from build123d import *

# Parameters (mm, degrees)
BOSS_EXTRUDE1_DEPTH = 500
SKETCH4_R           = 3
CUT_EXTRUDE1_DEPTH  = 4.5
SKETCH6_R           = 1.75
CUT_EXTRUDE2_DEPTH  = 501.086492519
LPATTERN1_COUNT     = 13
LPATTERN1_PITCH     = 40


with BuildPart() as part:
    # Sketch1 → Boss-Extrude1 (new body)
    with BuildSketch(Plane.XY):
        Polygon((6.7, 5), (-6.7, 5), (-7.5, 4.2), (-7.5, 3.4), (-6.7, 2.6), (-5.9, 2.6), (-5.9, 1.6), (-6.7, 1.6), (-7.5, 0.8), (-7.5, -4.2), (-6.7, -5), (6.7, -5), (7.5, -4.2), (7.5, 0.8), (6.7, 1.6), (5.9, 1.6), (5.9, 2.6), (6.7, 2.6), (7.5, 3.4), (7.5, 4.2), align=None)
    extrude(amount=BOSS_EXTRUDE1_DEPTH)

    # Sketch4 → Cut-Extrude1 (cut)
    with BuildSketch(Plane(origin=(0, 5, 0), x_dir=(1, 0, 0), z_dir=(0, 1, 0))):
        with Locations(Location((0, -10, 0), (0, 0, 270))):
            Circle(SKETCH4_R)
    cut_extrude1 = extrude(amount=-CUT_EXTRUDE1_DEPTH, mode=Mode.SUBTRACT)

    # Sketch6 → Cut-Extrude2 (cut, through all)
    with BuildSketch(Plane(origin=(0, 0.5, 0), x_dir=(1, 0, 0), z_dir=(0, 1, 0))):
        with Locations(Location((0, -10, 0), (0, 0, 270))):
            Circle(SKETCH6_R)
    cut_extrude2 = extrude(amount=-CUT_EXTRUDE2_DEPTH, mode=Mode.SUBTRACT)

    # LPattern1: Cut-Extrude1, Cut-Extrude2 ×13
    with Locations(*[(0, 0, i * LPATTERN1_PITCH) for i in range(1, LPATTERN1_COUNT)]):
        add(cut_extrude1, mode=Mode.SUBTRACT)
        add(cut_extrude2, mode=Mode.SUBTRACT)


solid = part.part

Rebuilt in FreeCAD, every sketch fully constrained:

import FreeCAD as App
import Part
import Sketcher
from FreeCAD import Vector


def add_polygon(sketch, points):
    """Adds a closed chain of lines whose ends are joined by coincident constraints."""
    first, n = sketch.GeometryCount, len(points)
    for a, b in zip(points, points[1:] + points[:1]):
        sketch.addGeometry(Part.LineSegment(App.Vector(*a, 0), App.Vector(*b, 0)), False)
    for i in range(n):
        sketch.addConstraint(Sketcher.Constraint("Coincident", first + i, 2, first + (i + 1) % n, 1))

doc = App.newDocument("Part")
body = doc.addObject("PartDesign::Body", "Body")

# Sketch on XY plane
sketch1 = body.newObject("Sketcher::SketchObject", "Sketch")
sketch1.AttachmentSupport = (doc.getObject("XY_Plane"), [""])
sketch1.MapMode = "FlatFace"
add_polygon(sketch1, [(6.7, 5), (-6.7, 5), (-7.5, 4.2), (-7.5, 3.4), (-6.7, 2.6), (-5.9, 2.6), (-5.9, 1.6), (-6.7, 1.6), (-7.5, 0.8), (-7.5, -4.2), (-6.7, -5), (6.7, -5), (7.5, -4.2), (7.5, 0.8), (6.7, 1.6), (5.9, 1.6), (5.9, 2.6), (6.7, 2.6), (7.5, 3.4), (7.5, 4.2)])  # lines 0-19
sketch1.addConstraint([
    Sketcher.Constraint("Horizontal", 0),
    Sketcher.Constraint("Vertical", 2),
    Sketcher.Constraint("Horizontal", 4),
    Sketcher.Constraint("Vertical", 5),
    Sketcher.Constraint("Horizontal", 6),
    Sketcher.Constraint("Vertical", 8),
    Sketcher.Constraint("Horizontal", 10),
    Sketcher.Constraint("Vertical", 12),
    Sketcher.Constraint("Horizontal", 14),
    Sketcher.Constraint("Vertical", 15),
    Sketcher.Constraint("Horizontal", 16),
    Sketcher.Constraint("Vertical", 18),
    Sketcher.Constraint("Symmetric", 0, 2, 10, 2, -1, 1),
    Sketcher.Constraint("Symmetric", 1, 2, 11, 2, -1, 1),
    Sketcher.Constraint("Symmetric", 8, 2, 18, 2, -1, 1),
    Sketcher.Constraint("Symmetric", 8, 2, 11, 2, -2),
    Sketcher.Constraint("Symmetric", 6, 2, 13, 2, -2),
    Sketcher.Constraint("Symmetric", 4, 2, 15, 2, -2),
    Sketcher.Constraint("Perpendicular", 1, 3),
    Sketcher.Constraint("Perpendicular", 3, 7),
    Sketcher.Constraint("Perpendicular", 7, 9),
    Sketcher.Constraint("Perpendicular", 11, 13),
    Sketcher.Constraint("Perpendicular", 13, 17),
    Sketcher.Constraint("Perpendicular", 17, 19),
    Sketcher.Constraint("Horizontal", 7, 2, 12, 2),
    Sketcher.Constraint("Horizontal", 2, 2, 17, 2),
    Sketcher.Constraint("Vertical", 0, 2, 3, 2),
    Sketcher.Constraint("Vertical", 3, 2, 6, 2),
    Sketcher.Constraint("Equal", 16, 2),
    Sketcher.Constraint("DistanceY", 5, 2, 5, 1, 1.0),
    Sketcher.Constraint("DistanceY", 8, 2, 8, 1, 5.0),
    Sketcher.Constraint("DistanceX", 0, 2, 0, 1, 13.4),
    Sketcher.Constraint("DistanceX", 4, 1, 4, 2, 0.8),
    Sketcher.Constraint("DistanceY", -1, 1, 0, 2, 5.0),
])
pad1 = body.newObject("PartDesign::Pad", "Pad")
pad1.Profile = sketch1
pad1.Length = 500

# Sketch on XZ plane
sketch2 = body.newObject("Sketcher::SketchObject", "Sketch001")
sketch2.AttachmentSupport = (doc.getObject("XZ_Plane"), [""])
sketch2.MapMode = "FlatFace"
sketch2.AttachmentOffset = App.Placement(Vector(0, 0, -5), App.Rotation())
sketch2.addGeometry(Part.Circle(Vector(0, 10, 0), Vector(0, 0, 1), 3), False)
sketch2.addConstraint([
    Sketcher.Constraint("PointOnObject", 0, 3, -2),
    Sketcher.Constraint("Diameter", 0, 6.0),
    Sketcher.Constraint("DistanceY", -1, 1, 0, 3, 10.0),
])
pocket1 = body.newObject("PartDesign::Pocket", "Pocket")
pocket1.Profile = sketch2
pocket1.Length = 4.5
pocket1.Reversed = True

# Sketch on XZ plane
sketch3 = body.newObject("Sketcher::SketchObject", "Sketch002")
sketch3.AttachmentSupport = (doc.getObject("XZ_Plane"), [""])
sketch3.MapMode = "FlatFace"
sketch3.AttachmentOffset = App.Placement(Vector(0, 0, -0.5), App.Rotation())
sketch3.addGeometry(Part.Circle(Vector(0, 10, 0), Vector(0, 0, 1), 1.75), False)
sketch3.addConstraint([
    Sketcher.Constraint("PointOnObject", 0, 3, -2),
    Sketcher.Constraint("Diameter", 0, 3.5),
    Sketcher.Constraint("DistanceY", -1, 1, 0, 3, 10.0),
])
pocket2 = body.newObject("PartDesign::Pocket", "Pocket001")
pocket2.Profile = sketch3
pocket2.Type = "ThroughAll"
pocket2.Reversed = True
doc.recompute()

linearpattern = body.newObject("PartDesign::LinearPattern", "LinearPattern")
linearpattern.Originals = [pocket1, pocket2]
linearpattern.Direction = (doc.getObject("Z_Axis"), [""])
linearpattern.Mode = "offset"
linearpattern.Offset = 40
linearpattern.Occurrences = 13
body.Tip = linearpattern

doc.recompute()
